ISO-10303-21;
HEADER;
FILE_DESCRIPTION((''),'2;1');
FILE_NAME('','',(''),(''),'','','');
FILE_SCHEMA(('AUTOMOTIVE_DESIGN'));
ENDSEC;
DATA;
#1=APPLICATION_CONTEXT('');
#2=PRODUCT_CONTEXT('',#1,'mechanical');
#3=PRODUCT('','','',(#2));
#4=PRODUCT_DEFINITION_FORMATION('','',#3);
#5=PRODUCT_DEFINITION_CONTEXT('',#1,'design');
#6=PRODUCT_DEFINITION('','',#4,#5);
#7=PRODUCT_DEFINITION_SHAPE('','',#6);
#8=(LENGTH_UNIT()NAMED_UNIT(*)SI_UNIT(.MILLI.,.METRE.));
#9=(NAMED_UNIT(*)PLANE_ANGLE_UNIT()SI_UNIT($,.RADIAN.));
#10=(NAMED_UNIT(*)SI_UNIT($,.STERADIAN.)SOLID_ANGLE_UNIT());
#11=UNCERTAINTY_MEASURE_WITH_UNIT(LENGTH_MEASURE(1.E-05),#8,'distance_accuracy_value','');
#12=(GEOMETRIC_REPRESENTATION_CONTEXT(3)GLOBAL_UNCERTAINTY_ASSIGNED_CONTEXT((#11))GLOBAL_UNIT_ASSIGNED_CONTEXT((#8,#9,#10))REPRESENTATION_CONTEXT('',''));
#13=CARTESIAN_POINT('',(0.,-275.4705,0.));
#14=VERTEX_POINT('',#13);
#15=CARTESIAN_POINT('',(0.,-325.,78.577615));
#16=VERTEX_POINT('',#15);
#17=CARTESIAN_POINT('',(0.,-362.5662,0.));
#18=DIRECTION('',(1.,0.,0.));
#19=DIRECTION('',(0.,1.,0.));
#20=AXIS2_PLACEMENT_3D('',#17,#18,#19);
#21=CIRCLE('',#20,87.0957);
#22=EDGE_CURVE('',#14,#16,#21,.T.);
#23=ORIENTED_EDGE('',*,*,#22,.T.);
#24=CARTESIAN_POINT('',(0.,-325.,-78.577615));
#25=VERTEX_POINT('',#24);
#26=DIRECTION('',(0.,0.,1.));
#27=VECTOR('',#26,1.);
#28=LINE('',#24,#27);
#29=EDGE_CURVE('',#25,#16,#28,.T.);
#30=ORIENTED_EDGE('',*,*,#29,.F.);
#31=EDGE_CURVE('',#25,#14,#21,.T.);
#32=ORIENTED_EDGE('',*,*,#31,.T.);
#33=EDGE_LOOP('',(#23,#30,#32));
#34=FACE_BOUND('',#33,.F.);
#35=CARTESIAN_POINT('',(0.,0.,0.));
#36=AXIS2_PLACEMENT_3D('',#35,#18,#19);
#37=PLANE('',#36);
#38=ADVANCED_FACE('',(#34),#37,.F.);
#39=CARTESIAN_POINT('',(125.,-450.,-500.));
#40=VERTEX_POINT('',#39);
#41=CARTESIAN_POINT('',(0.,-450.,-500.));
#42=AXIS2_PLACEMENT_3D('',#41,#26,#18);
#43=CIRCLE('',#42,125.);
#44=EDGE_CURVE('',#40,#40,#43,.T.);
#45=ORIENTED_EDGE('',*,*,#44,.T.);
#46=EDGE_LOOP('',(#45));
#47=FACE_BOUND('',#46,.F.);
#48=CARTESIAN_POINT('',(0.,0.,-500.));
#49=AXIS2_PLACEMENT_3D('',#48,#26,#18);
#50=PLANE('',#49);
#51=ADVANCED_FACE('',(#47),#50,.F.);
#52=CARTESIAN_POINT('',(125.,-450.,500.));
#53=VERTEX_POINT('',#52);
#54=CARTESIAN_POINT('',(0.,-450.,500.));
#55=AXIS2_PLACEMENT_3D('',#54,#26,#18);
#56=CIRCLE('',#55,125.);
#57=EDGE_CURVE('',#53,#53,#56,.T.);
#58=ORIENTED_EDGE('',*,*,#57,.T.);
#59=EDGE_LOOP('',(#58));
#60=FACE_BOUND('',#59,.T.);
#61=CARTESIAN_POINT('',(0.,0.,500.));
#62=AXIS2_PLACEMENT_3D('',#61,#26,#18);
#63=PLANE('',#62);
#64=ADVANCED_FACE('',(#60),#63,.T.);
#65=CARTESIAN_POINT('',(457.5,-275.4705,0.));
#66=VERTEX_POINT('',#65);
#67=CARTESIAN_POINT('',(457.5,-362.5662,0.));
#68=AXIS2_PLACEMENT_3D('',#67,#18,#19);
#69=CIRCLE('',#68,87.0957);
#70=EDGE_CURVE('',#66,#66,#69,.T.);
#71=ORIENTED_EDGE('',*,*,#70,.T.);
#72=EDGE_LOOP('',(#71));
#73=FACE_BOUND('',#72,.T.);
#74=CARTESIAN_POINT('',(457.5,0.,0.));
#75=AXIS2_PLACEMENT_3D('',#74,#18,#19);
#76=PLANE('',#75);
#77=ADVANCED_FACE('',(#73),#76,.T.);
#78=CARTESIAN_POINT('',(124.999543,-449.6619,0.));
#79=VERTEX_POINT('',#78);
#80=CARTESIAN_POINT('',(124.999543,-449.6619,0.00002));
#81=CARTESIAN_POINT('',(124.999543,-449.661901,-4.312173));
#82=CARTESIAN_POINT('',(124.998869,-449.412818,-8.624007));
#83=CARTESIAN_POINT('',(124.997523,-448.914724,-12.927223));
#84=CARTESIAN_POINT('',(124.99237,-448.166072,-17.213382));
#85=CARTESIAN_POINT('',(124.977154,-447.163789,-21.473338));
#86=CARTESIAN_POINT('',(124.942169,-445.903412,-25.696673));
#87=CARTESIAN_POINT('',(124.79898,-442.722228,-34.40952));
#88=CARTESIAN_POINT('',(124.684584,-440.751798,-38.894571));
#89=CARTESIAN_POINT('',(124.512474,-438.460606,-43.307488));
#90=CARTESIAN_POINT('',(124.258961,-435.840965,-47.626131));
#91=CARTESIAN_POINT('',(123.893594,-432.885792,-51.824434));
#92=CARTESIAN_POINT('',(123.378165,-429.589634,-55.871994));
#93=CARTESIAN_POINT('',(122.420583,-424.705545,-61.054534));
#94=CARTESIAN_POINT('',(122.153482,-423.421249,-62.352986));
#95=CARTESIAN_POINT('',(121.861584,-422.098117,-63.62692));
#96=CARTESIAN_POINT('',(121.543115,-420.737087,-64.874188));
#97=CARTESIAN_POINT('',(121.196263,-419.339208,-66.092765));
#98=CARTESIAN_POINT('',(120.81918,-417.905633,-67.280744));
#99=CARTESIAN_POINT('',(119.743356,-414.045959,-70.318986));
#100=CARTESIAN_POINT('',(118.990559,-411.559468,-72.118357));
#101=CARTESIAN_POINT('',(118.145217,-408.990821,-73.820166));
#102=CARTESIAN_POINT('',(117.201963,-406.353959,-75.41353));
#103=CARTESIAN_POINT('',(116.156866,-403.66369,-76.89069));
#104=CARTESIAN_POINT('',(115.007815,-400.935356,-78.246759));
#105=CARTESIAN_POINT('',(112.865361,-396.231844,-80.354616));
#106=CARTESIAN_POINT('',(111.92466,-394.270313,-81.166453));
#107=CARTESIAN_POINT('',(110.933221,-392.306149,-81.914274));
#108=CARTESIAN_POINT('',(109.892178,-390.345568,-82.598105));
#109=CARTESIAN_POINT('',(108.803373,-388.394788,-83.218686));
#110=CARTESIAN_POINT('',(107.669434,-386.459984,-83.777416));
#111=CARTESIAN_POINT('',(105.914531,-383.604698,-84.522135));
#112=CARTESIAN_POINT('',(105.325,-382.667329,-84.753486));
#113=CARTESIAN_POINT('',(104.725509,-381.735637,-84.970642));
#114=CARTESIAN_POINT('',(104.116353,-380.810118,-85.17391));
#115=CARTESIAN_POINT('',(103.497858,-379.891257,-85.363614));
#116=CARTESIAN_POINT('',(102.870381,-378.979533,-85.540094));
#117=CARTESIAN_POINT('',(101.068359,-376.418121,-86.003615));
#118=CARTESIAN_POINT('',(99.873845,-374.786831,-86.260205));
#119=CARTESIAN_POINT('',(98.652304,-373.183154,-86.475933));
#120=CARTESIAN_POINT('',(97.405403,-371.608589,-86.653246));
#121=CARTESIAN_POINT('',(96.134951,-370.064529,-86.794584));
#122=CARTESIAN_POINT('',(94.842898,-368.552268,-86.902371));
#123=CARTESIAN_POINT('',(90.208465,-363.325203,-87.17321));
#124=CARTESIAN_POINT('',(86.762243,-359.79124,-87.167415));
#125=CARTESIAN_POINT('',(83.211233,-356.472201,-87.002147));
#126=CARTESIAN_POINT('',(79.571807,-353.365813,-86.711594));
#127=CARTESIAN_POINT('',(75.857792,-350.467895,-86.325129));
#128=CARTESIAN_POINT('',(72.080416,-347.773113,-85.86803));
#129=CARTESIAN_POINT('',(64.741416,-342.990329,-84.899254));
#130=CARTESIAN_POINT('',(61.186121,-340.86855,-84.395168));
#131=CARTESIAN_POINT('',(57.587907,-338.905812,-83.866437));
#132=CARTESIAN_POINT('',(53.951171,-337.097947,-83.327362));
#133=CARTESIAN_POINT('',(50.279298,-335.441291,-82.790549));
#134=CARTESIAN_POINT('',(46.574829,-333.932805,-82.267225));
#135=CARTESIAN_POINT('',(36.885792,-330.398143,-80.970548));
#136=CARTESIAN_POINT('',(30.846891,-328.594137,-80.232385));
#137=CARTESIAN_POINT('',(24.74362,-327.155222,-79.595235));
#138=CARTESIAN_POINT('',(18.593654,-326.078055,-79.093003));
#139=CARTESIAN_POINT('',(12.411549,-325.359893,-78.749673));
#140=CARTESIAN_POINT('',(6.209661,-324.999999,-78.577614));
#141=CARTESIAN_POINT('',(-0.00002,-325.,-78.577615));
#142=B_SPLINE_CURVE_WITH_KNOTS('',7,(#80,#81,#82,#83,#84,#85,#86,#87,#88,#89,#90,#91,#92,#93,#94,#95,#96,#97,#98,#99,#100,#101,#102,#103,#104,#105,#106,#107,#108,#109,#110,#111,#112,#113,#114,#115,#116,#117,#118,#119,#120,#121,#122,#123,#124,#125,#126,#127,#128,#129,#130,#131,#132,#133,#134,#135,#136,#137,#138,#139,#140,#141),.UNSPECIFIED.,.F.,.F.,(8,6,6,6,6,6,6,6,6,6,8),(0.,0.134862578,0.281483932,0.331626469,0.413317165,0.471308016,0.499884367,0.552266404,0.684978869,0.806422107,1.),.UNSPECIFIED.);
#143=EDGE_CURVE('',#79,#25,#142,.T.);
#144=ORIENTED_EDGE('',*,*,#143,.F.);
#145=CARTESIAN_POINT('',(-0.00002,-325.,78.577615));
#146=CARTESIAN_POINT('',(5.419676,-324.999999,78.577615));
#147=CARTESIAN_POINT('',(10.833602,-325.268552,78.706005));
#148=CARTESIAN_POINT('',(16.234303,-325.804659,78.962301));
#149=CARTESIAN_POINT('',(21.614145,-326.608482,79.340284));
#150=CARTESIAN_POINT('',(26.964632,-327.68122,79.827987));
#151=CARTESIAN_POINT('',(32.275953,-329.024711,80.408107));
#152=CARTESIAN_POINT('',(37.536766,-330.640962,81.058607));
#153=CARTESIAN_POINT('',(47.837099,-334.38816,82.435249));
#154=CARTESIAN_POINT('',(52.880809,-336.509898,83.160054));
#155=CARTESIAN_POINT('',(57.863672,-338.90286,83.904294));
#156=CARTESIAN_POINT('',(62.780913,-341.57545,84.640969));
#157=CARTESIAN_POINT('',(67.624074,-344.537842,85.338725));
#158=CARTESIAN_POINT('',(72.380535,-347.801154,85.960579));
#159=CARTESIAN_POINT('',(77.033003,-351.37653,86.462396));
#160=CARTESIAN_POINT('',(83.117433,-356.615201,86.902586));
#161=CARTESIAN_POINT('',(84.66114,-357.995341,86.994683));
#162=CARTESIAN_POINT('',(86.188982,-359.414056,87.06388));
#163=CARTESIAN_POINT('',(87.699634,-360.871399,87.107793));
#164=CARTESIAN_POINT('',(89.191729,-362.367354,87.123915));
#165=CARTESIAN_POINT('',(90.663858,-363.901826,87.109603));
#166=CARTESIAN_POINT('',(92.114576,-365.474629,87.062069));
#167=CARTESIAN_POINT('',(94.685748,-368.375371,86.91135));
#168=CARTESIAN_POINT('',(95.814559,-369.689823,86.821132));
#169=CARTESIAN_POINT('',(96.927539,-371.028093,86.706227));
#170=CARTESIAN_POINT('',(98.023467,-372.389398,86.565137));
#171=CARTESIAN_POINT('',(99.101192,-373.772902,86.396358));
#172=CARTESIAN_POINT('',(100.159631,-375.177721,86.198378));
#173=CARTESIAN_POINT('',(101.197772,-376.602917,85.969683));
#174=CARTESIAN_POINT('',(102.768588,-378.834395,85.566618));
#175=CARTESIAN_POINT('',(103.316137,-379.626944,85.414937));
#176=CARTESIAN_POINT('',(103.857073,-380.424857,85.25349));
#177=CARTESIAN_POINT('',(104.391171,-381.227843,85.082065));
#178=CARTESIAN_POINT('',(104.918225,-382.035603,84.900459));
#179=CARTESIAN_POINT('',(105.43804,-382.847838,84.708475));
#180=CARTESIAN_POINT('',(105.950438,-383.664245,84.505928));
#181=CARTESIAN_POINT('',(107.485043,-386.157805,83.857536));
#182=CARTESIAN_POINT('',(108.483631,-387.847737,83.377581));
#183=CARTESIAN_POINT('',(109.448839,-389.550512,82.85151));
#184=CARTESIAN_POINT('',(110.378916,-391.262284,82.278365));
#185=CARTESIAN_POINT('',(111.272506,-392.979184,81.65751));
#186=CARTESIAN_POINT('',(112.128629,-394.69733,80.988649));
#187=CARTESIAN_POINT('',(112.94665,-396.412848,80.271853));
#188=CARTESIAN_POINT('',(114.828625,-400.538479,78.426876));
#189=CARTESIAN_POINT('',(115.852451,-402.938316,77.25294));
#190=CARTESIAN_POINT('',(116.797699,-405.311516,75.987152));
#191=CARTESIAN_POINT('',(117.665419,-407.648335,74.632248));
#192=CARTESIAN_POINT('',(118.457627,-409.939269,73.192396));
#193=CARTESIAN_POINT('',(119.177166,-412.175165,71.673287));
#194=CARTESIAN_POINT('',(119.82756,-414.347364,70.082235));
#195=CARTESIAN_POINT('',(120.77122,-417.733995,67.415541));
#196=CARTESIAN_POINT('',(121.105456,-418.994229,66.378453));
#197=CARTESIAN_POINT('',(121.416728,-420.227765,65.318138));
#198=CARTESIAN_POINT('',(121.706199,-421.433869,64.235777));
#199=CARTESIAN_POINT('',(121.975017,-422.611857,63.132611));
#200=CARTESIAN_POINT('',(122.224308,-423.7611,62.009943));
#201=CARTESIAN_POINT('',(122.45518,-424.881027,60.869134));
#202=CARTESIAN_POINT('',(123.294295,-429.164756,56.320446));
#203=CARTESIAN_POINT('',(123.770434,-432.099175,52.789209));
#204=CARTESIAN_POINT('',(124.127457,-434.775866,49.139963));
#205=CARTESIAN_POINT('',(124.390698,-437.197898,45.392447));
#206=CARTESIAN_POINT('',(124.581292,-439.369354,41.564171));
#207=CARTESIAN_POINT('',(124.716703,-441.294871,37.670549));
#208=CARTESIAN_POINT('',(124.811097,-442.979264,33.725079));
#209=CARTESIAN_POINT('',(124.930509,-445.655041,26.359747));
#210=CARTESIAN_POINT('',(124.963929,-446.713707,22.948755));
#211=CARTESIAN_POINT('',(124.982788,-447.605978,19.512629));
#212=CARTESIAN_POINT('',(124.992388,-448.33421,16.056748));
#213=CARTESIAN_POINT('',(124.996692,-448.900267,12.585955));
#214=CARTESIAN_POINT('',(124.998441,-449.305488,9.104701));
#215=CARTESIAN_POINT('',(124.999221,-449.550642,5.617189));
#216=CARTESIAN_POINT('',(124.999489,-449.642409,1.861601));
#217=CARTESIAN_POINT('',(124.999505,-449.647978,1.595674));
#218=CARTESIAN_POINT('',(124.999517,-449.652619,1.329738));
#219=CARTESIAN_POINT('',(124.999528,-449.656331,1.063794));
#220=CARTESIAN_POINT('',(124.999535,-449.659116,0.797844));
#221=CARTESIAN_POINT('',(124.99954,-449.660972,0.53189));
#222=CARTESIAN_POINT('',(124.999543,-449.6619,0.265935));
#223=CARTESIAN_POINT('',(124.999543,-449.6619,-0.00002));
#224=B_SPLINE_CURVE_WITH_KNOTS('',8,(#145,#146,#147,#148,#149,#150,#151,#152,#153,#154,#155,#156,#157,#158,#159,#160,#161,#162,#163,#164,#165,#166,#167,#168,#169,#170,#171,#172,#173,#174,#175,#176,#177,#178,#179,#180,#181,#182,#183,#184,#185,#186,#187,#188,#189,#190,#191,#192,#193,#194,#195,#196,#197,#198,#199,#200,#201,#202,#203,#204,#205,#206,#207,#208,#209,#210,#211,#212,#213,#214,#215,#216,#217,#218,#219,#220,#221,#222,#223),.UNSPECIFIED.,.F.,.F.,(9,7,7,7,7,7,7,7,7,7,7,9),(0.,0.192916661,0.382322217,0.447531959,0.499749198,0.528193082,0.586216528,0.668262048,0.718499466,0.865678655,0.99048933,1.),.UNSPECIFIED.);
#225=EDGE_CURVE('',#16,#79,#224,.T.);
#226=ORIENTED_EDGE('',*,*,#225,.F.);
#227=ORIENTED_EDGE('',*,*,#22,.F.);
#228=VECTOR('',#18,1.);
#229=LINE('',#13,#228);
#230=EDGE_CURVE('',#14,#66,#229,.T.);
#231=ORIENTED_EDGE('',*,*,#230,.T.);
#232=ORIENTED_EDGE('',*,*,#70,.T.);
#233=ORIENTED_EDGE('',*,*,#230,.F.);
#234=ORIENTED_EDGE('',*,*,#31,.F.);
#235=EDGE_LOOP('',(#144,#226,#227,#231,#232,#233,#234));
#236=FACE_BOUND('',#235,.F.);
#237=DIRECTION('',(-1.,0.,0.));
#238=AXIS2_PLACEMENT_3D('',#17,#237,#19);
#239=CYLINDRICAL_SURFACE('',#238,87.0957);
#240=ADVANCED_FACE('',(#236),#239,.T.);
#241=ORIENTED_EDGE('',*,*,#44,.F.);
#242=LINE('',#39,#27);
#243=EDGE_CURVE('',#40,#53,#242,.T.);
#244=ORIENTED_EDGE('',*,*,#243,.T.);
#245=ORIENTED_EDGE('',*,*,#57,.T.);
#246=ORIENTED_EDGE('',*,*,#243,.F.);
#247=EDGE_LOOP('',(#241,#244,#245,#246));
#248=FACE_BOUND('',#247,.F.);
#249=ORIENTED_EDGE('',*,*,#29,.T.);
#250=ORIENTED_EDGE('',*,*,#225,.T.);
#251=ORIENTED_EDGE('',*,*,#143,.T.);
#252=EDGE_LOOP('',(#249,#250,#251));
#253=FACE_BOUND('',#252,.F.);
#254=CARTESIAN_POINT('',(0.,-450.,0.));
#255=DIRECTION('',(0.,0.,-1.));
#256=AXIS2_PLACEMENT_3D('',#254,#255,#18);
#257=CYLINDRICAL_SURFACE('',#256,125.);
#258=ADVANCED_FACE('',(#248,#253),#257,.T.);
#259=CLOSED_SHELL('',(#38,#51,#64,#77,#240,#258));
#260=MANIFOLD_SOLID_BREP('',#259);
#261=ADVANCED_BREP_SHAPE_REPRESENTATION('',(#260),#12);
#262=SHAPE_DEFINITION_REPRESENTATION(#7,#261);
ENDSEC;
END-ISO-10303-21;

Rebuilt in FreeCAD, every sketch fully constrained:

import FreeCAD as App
import Part
import Sketcher
from FreeCAD import Vector
Q = App.Units.Quantity

doc = App.newDocument("Part")
body = doc.addObject("PartDesign::Body", "Body")

# Sketch on XY plane
sketch1 = body.newObject("Sketcher::SketchObject", "Sketch")
sketch1.AttachmentSupport = (doc.getObject("XY_Plane"), [""])
sketch1.MapMode = "FlatFace"
sketch1.addGeometry(Part.Circle(Vector(0, -450, 0), Vector(0, 0, 1), 125), False)
sketch1.addConstraint(Sketcher.Constraint("PointOnObject", 0, 3, -2))
sketch1.addConstraint(Sketcher.Constraint("Diameter", 0, Q("250 mm")))
sketch1.addConstraint(Sketcher.Constraint("DistanceY", 0, 3, -1, 1, Q("450 mm")))
pad1 = body.newObject("PartDesign::Pad", "Pad")
pad1.Profile = sketch1
pad1.Length = 1000
pad1.Midplane = True

# Sketch on YZ plane
sketch2 = body.newObject("Sketcher::SketchObject", "Sketch001")
sketch2.AttachmentSupport = (doc.getObject("YZ_Plane"), [""])
sketch2.MapMode = "FlatFace"
sketch2.addGeometry(Part.Circle(Vector(-363, 0, 0), Vector(0, 0, 1), 87), False)
sketch2.addConstraint(Sketcher.Constraint("PointOnObject", 0, 3, -1))
sketch2.addConstraint(Sketcher.Constraint("Diameter", 0, Q("174.1914 mm")))
sketch2.addConstraint(Sketcher.Constraint("DistanceX", 0, 3, -1, 1, Q("362.5662 mm")))
pad2 = body.newObject("PartDesign::Pad", "Pad001")
pad2.Profile = sketch2
pad2.Length = 457.5

doc.recompute()
